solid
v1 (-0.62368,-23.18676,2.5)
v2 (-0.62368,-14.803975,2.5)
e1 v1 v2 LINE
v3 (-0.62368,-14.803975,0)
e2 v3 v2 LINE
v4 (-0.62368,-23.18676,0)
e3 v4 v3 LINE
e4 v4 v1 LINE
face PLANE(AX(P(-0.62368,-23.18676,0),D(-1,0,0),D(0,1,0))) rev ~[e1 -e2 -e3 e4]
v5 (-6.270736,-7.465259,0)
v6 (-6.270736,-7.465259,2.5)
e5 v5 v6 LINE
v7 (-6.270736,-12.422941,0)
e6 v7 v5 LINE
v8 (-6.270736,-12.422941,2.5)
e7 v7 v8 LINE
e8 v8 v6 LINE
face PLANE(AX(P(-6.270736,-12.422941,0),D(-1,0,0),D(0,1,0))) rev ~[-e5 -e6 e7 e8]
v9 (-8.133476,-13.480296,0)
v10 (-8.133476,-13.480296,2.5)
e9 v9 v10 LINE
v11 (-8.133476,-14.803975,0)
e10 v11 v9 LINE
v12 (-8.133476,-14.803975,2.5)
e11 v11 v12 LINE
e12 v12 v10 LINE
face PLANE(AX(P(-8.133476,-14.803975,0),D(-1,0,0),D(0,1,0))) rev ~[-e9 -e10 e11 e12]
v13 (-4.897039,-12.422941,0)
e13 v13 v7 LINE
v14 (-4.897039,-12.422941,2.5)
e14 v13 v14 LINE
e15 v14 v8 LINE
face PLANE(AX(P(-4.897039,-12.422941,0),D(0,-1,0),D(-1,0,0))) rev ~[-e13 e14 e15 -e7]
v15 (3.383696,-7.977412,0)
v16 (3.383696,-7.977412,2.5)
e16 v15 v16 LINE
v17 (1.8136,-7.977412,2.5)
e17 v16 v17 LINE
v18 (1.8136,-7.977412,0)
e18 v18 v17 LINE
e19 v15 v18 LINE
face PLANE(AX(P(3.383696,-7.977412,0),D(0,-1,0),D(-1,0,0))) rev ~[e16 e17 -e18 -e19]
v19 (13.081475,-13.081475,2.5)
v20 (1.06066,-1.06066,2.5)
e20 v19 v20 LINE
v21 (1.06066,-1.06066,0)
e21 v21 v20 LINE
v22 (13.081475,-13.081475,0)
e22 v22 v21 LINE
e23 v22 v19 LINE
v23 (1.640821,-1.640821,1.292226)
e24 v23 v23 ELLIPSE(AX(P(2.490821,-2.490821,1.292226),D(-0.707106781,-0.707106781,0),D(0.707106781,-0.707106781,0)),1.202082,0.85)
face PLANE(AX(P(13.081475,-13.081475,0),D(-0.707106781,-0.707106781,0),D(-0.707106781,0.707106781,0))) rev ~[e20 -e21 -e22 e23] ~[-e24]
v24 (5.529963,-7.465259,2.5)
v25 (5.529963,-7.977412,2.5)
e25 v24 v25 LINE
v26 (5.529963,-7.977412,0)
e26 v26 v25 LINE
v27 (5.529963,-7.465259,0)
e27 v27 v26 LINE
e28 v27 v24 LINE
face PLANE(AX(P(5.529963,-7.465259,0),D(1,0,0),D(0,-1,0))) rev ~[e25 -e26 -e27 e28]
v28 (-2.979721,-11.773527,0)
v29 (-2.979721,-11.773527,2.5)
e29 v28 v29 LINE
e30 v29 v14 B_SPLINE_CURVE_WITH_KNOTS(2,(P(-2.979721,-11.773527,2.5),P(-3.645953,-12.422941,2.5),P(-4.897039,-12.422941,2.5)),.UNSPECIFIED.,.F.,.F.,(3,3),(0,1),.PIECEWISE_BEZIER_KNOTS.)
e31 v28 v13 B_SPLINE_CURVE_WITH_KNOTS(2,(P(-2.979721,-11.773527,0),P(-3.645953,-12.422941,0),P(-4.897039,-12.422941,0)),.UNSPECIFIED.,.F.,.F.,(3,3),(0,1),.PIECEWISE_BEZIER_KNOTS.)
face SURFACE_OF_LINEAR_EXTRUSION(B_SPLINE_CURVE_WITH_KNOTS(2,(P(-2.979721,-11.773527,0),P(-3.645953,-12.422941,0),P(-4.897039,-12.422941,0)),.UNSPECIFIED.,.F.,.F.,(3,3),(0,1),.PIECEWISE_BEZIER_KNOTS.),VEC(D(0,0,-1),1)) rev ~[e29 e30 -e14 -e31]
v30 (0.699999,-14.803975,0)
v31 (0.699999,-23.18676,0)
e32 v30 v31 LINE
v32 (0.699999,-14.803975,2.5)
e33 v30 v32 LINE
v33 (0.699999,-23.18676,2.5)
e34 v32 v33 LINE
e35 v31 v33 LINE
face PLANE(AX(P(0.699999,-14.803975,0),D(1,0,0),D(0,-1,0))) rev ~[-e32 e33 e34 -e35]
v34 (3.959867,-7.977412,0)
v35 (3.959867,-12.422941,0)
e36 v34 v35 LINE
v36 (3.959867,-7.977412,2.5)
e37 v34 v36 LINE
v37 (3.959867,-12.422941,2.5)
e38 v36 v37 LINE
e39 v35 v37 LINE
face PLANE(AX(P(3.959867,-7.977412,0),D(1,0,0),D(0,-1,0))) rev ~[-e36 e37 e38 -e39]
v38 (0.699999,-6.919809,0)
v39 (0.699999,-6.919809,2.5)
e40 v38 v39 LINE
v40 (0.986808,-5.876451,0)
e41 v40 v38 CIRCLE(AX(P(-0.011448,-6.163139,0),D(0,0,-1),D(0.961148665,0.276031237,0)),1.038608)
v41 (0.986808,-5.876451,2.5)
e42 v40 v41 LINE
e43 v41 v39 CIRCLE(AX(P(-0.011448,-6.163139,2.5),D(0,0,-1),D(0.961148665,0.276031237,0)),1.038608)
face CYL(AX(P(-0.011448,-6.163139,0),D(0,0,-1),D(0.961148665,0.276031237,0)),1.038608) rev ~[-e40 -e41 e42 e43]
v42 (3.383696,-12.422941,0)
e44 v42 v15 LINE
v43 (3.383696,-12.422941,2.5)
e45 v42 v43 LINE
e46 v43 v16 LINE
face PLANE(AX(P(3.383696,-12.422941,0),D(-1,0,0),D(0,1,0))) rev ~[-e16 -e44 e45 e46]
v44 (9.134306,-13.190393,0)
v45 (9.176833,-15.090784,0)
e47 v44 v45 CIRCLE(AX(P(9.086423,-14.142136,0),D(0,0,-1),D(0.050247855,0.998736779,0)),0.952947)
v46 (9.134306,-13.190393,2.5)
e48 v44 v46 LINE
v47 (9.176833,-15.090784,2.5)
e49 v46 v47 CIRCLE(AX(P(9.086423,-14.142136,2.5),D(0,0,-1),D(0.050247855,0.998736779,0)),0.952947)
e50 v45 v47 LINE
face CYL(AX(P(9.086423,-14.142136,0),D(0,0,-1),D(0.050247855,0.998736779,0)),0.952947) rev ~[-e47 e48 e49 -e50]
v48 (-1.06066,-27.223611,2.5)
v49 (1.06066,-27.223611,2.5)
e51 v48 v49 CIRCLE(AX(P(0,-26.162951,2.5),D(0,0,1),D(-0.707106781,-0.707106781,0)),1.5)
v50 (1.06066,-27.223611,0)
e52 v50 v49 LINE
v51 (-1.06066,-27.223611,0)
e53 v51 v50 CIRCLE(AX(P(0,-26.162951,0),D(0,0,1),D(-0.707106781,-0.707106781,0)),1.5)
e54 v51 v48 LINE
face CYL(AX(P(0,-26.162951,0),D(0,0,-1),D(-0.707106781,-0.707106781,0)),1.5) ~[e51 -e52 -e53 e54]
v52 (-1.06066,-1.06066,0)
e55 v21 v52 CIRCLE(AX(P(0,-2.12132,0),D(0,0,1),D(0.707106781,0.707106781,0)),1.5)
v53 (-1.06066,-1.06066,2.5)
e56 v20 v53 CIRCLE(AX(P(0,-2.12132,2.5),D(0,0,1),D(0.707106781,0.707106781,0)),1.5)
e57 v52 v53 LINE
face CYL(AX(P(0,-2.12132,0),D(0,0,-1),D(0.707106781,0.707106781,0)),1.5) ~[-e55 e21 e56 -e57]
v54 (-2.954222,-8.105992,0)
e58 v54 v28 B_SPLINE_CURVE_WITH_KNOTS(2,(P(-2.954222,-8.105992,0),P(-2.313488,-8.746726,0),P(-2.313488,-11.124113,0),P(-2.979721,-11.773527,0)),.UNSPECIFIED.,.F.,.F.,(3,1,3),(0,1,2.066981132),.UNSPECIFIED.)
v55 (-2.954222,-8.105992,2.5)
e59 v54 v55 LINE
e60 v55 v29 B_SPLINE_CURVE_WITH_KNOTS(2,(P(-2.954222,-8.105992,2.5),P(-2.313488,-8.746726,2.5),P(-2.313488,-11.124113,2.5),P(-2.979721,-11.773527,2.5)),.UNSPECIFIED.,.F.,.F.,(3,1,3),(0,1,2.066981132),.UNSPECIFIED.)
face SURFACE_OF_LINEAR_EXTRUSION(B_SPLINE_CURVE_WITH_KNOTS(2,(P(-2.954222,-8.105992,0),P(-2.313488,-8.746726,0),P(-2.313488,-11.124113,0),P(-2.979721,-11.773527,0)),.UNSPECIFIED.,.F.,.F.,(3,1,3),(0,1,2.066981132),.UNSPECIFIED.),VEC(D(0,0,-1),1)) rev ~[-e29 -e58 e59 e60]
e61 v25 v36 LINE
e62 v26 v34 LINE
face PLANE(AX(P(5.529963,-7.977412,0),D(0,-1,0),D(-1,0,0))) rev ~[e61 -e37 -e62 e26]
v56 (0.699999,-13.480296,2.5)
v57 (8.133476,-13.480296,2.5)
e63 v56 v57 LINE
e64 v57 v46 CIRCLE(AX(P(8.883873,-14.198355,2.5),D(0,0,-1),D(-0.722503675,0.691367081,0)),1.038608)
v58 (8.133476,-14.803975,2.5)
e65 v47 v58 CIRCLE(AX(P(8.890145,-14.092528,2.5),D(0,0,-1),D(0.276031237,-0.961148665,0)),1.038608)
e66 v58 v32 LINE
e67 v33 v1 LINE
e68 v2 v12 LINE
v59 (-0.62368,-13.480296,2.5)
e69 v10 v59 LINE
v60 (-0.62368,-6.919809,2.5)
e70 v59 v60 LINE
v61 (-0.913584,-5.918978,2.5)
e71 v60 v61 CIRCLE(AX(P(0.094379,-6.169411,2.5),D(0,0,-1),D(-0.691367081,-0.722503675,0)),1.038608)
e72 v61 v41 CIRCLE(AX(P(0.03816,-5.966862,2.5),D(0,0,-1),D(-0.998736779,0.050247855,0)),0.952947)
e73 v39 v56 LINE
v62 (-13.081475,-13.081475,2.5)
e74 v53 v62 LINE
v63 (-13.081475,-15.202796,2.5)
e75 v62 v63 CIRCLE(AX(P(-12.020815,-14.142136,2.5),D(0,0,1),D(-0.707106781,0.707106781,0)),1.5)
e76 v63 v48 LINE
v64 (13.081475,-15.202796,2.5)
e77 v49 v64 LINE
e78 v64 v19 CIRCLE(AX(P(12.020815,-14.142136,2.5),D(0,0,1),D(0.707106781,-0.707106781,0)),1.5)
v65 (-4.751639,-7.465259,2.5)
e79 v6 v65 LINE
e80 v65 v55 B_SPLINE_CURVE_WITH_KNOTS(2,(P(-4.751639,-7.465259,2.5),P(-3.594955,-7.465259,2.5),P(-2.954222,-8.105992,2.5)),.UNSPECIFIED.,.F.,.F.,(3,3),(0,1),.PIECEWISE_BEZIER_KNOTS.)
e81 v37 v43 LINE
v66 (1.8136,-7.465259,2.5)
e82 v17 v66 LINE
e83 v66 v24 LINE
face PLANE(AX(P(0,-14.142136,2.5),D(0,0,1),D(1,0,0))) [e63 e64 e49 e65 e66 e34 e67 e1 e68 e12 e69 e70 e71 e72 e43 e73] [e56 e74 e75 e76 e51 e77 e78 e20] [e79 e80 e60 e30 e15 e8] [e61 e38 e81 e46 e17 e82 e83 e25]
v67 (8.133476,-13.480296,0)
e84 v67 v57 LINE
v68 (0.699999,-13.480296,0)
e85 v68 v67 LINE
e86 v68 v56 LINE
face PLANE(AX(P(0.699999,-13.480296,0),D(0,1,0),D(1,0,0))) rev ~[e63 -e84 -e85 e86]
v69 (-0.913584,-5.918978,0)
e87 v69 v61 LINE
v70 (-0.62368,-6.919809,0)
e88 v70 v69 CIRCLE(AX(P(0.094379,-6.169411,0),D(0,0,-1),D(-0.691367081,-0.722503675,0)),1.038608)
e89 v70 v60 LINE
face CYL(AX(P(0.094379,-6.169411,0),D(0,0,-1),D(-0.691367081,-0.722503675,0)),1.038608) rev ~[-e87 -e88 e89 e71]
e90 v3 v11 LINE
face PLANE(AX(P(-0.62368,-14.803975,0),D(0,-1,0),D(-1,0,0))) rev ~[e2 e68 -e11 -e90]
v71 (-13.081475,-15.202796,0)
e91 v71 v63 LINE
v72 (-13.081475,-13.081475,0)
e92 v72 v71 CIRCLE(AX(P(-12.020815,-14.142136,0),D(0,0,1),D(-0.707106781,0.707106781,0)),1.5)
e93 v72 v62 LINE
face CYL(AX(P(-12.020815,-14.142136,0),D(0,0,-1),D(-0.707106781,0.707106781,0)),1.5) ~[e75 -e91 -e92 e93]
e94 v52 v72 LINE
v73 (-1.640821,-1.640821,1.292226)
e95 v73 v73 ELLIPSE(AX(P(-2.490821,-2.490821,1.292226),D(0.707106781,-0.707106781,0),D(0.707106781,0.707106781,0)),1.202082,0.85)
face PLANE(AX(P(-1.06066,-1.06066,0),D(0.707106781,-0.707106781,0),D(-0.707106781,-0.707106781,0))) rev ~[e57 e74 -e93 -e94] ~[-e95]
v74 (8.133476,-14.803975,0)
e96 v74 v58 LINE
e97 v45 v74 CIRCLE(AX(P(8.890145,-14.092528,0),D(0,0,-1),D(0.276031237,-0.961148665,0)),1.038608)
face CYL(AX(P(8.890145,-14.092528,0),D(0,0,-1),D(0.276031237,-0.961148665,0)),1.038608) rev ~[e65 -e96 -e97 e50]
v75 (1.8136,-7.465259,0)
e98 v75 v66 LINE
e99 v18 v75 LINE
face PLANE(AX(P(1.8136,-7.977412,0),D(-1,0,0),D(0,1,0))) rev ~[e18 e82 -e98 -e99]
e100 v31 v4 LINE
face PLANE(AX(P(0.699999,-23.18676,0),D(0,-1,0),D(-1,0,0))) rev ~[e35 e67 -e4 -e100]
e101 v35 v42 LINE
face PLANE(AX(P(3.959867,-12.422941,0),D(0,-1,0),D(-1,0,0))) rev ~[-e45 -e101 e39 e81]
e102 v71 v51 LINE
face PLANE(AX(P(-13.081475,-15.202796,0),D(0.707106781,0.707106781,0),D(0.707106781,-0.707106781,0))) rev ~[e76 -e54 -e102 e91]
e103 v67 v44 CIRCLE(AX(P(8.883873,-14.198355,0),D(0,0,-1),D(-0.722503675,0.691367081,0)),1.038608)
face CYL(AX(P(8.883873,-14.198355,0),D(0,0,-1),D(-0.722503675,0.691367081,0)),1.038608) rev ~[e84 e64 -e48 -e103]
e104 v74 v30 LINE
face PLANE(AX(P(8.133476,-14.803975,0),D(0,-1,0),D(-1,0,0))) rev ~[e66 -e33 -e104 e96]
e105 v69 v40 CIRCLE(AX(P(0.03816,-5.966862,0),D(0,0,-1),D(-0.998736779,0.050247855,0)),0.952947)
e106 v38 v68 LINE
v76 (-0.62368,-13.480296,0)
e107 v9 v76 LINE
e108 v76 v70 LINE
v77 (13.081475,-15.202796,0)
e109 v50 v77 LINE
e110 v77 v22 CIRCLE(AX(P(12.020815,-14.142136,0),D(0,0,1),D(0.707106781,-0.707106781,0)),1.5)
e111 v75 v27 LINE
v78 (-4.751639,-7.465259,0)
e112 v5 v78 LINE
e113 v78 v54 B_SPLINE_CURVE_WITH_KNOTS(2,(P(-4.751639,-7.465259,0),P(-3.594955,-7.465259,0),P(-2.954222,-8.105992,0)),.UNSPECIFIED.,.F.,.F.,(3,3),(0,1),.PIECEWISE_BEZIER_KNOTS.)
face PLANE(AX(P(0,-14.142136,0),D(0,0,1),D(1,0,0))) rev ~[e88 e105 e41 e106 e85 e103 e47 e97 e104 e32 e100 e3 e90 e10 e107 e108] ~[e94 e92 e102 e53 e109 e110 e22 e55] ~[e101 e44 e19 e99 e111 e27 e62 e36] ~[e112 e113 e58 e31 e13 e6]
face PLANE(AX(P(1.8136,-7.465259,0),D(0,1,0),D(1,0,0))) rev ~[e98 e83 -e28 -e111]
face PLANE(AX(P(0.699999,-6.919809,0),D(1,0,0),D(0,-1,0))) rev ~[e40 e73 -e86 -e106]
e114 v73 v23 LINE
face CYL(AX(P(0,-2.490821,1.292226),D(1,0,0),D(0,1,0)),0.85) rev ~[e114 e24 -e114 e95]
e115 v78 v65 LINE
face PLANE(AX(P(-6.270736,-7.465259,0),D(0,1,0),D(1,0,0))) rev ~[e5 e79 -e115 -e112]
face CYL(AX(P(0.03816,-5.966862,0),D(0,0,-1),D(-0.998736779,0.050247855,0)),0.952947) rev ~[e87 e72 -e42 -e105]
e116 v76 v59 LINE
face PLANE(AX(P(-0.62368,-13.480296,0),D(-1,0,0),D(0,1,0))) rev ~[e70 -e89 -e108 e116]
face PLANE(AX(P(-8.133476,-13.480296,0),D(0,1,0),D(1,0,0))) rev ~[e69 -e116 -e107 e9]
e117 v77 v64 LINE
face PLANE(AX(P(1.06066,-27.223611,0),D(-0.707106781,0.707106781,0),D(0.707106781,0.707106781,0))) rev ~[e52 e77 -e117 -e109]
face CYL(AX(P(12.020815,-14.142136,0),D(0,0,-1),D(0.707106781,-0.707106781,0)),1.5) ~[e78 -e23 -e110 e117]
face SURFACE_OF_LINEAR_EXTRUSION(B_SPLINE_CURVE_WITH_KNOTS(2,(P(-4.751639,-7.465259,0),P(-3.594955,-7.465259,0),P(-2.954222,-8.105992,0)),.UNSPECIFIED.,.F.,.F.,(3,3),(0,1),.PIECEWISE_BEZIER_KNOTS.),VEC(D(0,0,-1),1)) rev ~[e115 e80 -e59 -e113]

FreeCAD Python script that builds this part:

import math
import FreeCAD as App
import Part
import Sketcher
Q = App.Units.Quantity


def add_polygon(sketch, points):
    """Adds a closed chain of lines whose ends are joined by coincident constraints."""
    first, n = sketch.GeometryCount, len(points)
    for a, b in zip(points, points[1:] + points[:1]):
        sketch.addGeometry(Part.LineSegment(App.Vector(*a, 0), App.Vector(*b, 0)), False)
    for i in range(n):
        sketch.addConstraint(Sketcher.Constraint("Coincident", first + i, 2, first + (i + 1) % n, 1))

doc = App.newDocument("Part")
body = doc.addObject("PartDesign::Body", "Body")

# Sketch on XY plane
sketch1 = body.newObject("Sketcher::SketchObject", "Sketch")
sketch1.AttachmentSupport = (doc.getObject("XY_Plane"), [""])
sketch1.MapMode = "FlatFace"
sketch1.addGeometry(Part.LineSegment(App.Vector(13.081475, -13.081475, 0), App.Vector(1.06066, -1.06066, 0)), False)  # 0
sketch1.addGeometry(Part.ArcOfCircle(Part.Circle(App.Vector(0, -2.12132, 0), App.Vector(0, 0, 1), 1.5), math.radians(45), math.radians(135)), False)  # 1
sketch1.addGeometry(Part.LineSegment(App.Vector(-1.06066, -1.06066, 0), App.Vector(-13.081475, -13.081475, 0)), False)  # 2
sketch1.addGeometry(Part.ArcOfCircle(Part.Circle(App.Vector(-12.020815, -14.142136, 0), App.Vector(0, 0, 1), 1.5), math.radians(135), math.radians(225)), False)  # 3
sketch1.addGeometry(Part.LineSegment(App.Vector(-13.081475, -15.202796, 0), App.Vector(-1.06066, -27.223611, 0)), False)  # 4
sketch1.addGeometry(Part.ArcOfCircle(Part.Circle(App.Vector(0, -26.162951, 0), App.Vector(0, 0, 1), 1.5), math.radians(-135), math.radians(-45)), False)  # 5
sketch1.addGeometry(Part.LineSegment(App.Vector(1.06066, -27.223611, 0), App.Vector(13.081475, -15.202796, 0)), False)  # 6
sketch1.addGeometry(Part.ArcOfCircle(Part.Circle(App.Vector(12.020815, -14.142136, 0), App.Vector(0, 0, 1), 1.5), math.radians(-45), math.radians(45)), False)  # 7
sketch1.addGeometry(Part.BSplineCurve([App.Vector(-4.751639, -7.465259, 0), App.Vector(-3.594955, -7.465259, 0), App.Vector(-2.954222, -8.105992, 0)], [3, 3], [0, 1], False, 2, [1, 1, 1], False), False)  # 8
sketch1.addGeometry(Part.BSplineCurve([App.Vector(-2.954222, -8.105992, 0), App.Vector(-2.313488, -8.746726, 0), App.Vector(-2.313488, -11.124113, 0), App.Vector(-2.979721, -11.773527, 0)], [3, 1, 3], [0, 1, 2.066981132], False, 2, [1, 1, 1, 1], False), False)  # 9
sketch1.addGeometry(Part.BSplineCurve([App.Vector(-2.979721, -11.773527, 0), App.Vector(-3.645953, -12.422941, 0), App.Vector(-4.897039, -12.422941, 0)], [3, 3], [0, 1], False, 2, [1, 1, 1], False), False)  # 10
sketch1.addGeometry(Part.LineSegment(App.Vector(-4.897039, -12.422941, 0), App.Vector(-6.270736, -12.422941, 0)), False)  # 11
sketch1.addGeometry(Part.LineSegment(App.Vector(-6.270736, -12.422941, 0), App.Vector(-6.270736, -7.465259, 0)), False)  # 12
sketch1.addGeometry(Part.LineSegment(App.Vector(-6.270736, -7.465259, 0), App.Vector(-4.751639, -7.465259, 0)), False)  # 13
sketch1.addGeometry(Part.LineSegment(App.Vector(-0.62368, -14.803975, 0), App.Vector(-8.133476, -14.803975, 0)), False)  # 14
sketch1.addGeometry(Part.LineSegment(App.Vector(-8.133476, -14.803975, 0), App.Vector(-8.133476, -13.480296, 0)), False)  # 15
sketch1.addGeometry(Part.LineSegment(App.Vector(-8.133476, -13.480296, 0), App.Vector(-0.62368, -13.480296, 0)), False)  # 16
sketch1.addGeometry(Part.LineSegment(App.Vector(-0.62368, -13.480296, 0), App.Vector(-0.62368, -6.919809, 0)), False)  # 17
sketch1.addGeometry(Part.ArcOfCircle(Part.Circle(App.Vector(0.094379, -6.169411, 0), App.Vector(0, 0, 1), 1.038608), math.radians(166.047147), math.radians(226.261577)), False)  # 18
sketch1.addGeometry(Part.ArcOfCircle(Part.Circle(App.Vector(0.03816, -5.966862, 0), App.Vector(0, 0, 1), 0.952947), math.radians(5.444116), math.radians(177.119797)), False)  # 19
sketch1.addGeometry(Part.ArcOfCircle(Part.Circle(App.Vector(-0.011448, -6.163139, 0), App.Vector(0, 0, 1), 1.038608), math.radians(-46.764314), math.radians(16.023479)), False)  # 20
sketch1.addGeometry(Part.LineSegment(App.Vector(0.699999, -6.919809, 0), App.Vector(0.699999, -13.480296, 0)), False)  # 21
sketch1.addGeometry(Part.LineSegment(App.Vector(0.699999, -13.480296, 0), App.Vector(8.133476, -13.480296, 0)), False)  # 22
sketch1.addGeometry(Part.ArcOfCircle(Part.Circle(App.Vector(8.883873, -14.198355, 0), App.Vector(0, 0, 1), 1.038608), math.radians(76.047147), math.radians(136.261577)), False)  # 23
sketch1.addGeometry(Part.ArcOfCircle(Part.Circle(App.Vector(9.086423, -14.142136, 0), App.Vector(0, 0, 1), 0.952947), math.radians(-84.555884), math.radians(87.119797)), False)  # 24
sketch1.addGeometry(Part.ArcOfCircle(Part.Circle(App.Vector(8.890145, -14.092528, 0), App.Vector(0, 0, 1), 1.038608), math.radians(-136.764314), math.radians(-73.976521)), False)  # 25
sketch1.addGeometry(Part.LineSegment(App.Vector(8.133476, -14.803975, 0), App.Vector(0.699999, -14.803975, 0)), False)  # 26
sketch1.addGeometry(Part.LineSegment(App.Vector(0.699999, -14.803975, 0), App.Vector(0.699999, -23.18676, 0)), False)  # 27
sketch1.addGeometry(Part.LineSegment(App.Vector(0.699999, -23.18676, 0), App.Vector(-0.62368, -23.18676, 0)), False)  # 28
sketch1.addGeometry(Part.LineSegment(App.Vector(-0.62368, -23.18676, 0), App.Vector(-0.62368, -14.803975, 0)), False)  # 29
add_polygon(sketch1, [(5.529963, -7.977412), (3.959867, -7.977412), (3.959867, -12.422941), (3.383696, -12.422941), (3.383696, -7.977412), (1.8136, -7.977412), (1.8136, -7.465259), (5.529963, -7.465259)])  # lines 30-37
sketch1.addConstraint([
    Sketcher.Constraint("Block", 8),
    Sketcher.Constraint("Block", 9),
    Sketcher.Constraint("Block", 10),
    Sketcher.Constraint("Tangent", 0, 2, 1, 1),
    Sketcher.Constraint("Tangent", 1, 2, 2, 1),
    Sketcher.Constraint("Tangent", 2, 2, 3, 1),
    Sketcher.Constraint("Tangent", 3, 2, 4, 1),
    Sketcher.Constraint("Tangent", 4, 2, 5, 1),
    Sketcher.Constraint("Tangent", 5, 2, 6, 1),
    Sketcher.Constraint("Tangent", 6, 2, 7, 1),
    Sketcher.Constraint("Tangent", 7, 2, 0, 1),
    Sketcher.Constraint("Coincident", 10, 2, 11, 1),
    Sketcher.Constraint("Coincident", 11, 2, 12, 1),
    Sketcher.Constraint("Coincident", 12, 2, 13, 1),
    Sketcher.Constraint("Coincident", 13, 2, 8, 1),
    Sketcher.Constraint("Coincident", 14, 2, 15, 1),
    Sketcher.Constraint("Coincident", 15, 2, 16, 1),
    Sketcher.Constraint("Coincident", 16, 2, 17, 1),
    Sketcher.Constraint("Coincident", 17, 2, 18, 2),
    Sketcher.Constraint("Coincident", 18, 1, 19, 2),
    Sketcher.Constraint("Coincident", 19, 1, 20, 2),
    Sketcher.Constraint("Coincident", 20, 1, 21, 1),
    Sketcher.Constraint("Coincident", 21, 2, 22, 1),
    Sketcher.Constraint("Coincident", 22, 2, 23, 2),
    Sketcher.Constraint("Coincident", 23, 1, 24, 2),
    Sketcher.Constraint("Coincident", 24, 1, 25, 2),
    Sketcher.Constraint("Coincident", 25, 1, 26, 1),
    Sketcher.Constraint("Coincident", 26, 2, 27, 1),
    Sketcher.Constraint("Coincident", 27, 2, 28, 1),
    Sketcher.Constraint("Coincident", 28, 2, 29, 1),
    Sketcher.Constraint("Coincident", 29, 2, 14, 1),
    Sketcher.Constraint("Horizontal", 11),
    Sketcher.Constraint("Vertical", 12),
    Sketcher.Constraint("Horizontal", 13),
    Sketcher.Constraint("Horizontal", 14),
    Sketcher.Constraint("Vertical", 15),
    Sketcher.Constraint("Horizontal", 16),
    Sketcher.Constraint("Vertical", 17),
    Sketcher.Constraint("Vertical", 21),
    Sketcher.Constraint("Horizontal", 22),
    Sketcher.Constraint("Horizontal", 26),
    Sketcher.Constraint("Vertical", 27),
    Sketcher.Constraint("Horizontal", 28),
    Sketcher.Constraint("Vertical", 29),
    Sketcher.Constraint("Horizontal", 30),
    Sketcher.Constraint("Vertical", 31),
    Sketcher.Constraint("Horizontal", 32),
    Sketcher.Constraint("Vertical", 33),
    Sketcher.Constraint("Horizontal", 34),
    Sketcher.Constraint("Vertical", 35),
    Sketcher.Constraint("Horizontal", 36),
    Sketcher.Constraint("Vertical", 37),
    Sketcher.Constraint("Equal", 1, 3),
    Sketcher.Constraint("Equal", 3, 5),
    Sketcher.Constraint("Equal", 5, 7),
    Sketcher.Constraint("Equal", 18, 20),
    Sketcher.Constraint("Equal", 20, 23),
    Sketcher.Constraint("Equal", 19, 24),
    Sketcher.Constraint("Equal", 23, 25),
    Sketcher.Constraint("Symmetric", 3, 3, 7, 3, -2),
    Sketcher.Constraint("Symmetric", 15, 2, 22, 2, -2),
    Sketcher.Constraint("Symmetric", 14, 2, 25, 1, -2),
    Sketcher.Constraint("PointOnObject", 1, 3, -2),
    Sketcher.Constraint("PointOnObject", 5, 3, -2),
    Sketcher.Constraint("Perpendicular", 0, 2),
    Sketcher.Constraint("Perpendicular", 2, 4),
    Sketcher.Constraint("Horizontal", 7, 3, 24, 3),
    Sketcher.Constraint("Horizontal", 17, 2, 20, 1),
    Sketcher.Constraint("Horizontal", 11, 2, 31, 2),
    Sketcher.Constraint("Horizontal", 30, 2, 33, 2),
    Sketcher.Constraint("Horizontal", 13, 2, 35, 2),
    Sketcher.Constraint("Vertical", 21, 2, 26, 2),
    Sketcher.Constraint("Vertical", 17, 2, 28, 2),
    Sketcher.Constraint("Equal", 30, 34),
    Sketcher.Constraint("Equal", 28, 15),
    Sketcher.Constraint("Radius", 1, Q("1.5 mm")),
    Sketcher.Constraint("Distance", 0, Q("17 mm")),
    Sketcher.Constraint("DistanceX", -1, 1, 20, 1, Q("0.699999 mm")),
    Sketcher.Constraint("Radius", 18, Q("1.038608 mm")),
    Sketcher.Constraint("Radius", 19, Q("0.952947 mm")),
    Sketcher.Constraint("DistanceX", 3, 2, 14, 2, Q("4.948 mm")),
    Sketcher.Constraint("DistanceY", 30, 2, 18, 3, Q("1.808001 mm")),
    Sketcher.Constraint("DistanceX", 28, 2, 28, 1, Q("1.323679 mm")),
    Sketcher.Constraint("DistanceX", 32, 2, 32, 1, Q("0.576172 mm")),
    Sketcher.Constraint("DistanceY", 31, 2, 31, 1, Q("4.44553 mm")),
    Sketcher.Constraint("DistanceX", -1, 1, 34, 2, Q("1.8136 mm")),
    Sketcher.Constraint("DistanceX", 19, 3, 0, 2, Q("1.022501 mm")),
    Sketcher.Constraint("DistanceY", 19, 3, 0, 2, Q("4.906202 mm")),
    Sketcher.Constraint("DistanceX", 23, 3, 6, 2, Q("4.197602 mm")),
    Sketcher.Constraint("DistanceY", 11, 2, 20, 3, Q("6.259802 mm")),
    Sketcher.Constraint("DistanceY", 14, 2, 2, 2, Q("1.722499 mm")),
    Sketcher.Constraint("DistanceX", 11, 2, 11, 1, Q("1.373698 mm")),
    Sketcher.Constraint("DistanceX", 30, 2, 30, 1, Q("1.570095 mm")),
    Sketcher.Constraint("DistanceY", 17, 1, 17, 2, Q("6.560488 mm")),
    Sketcher.Constraint("DistanceY", 27, 2, 27, 1, Q("8.382785 mm")),
    Sketcher.Constraint("DistanceY", 1, 3, -1, 1, Q("2.12132 mm")),
    Sketcher.Constraint("DistanceX", 23, 3, 24, 3, Q("0.202549 mm")),
    Sketcher.Constraint("DistanceX", 23, 3, 25, 3, Q("0.006272 mm")),
])
pad1 = body.newObject("PartDesign::Pad", "Pad")
pad1.Profile = sketch1
pad1.Length = 2.5

# Sketch on YZ plane
sketch2 = body.newObject("Sketcher::SketchObject", "Sketch001")
sketch2.AttachmentSupport = (doc.getObject("YZ_Plane"), [""])
sketch2.MapMode = "FlatFace"
sketch2.addGeometry(Part.Circle(App.Vector(-2.490821, 1.292226, 0), App.Vector(0, 0, 1), 0.85), False)
sketch2.addConstraint([
    Sketcher.Constraint("Diameter", 0, Q("1.7 mm")),
    Sketcher.Constraint("DistanceX", 0, 3, -1, 1, Q("2.490821 mm")),
    Sketcher.Constraint("DistanceY", -1, 1, 0, 3, Q("1.292226 mm")),
])
pocket1 = body.newObject("PartDesign::Pocket", "Pocket")
pocket1.Profile = sketch2
pocket1.Length = 25
pocket1.Midplane = True

doc.recompute()
